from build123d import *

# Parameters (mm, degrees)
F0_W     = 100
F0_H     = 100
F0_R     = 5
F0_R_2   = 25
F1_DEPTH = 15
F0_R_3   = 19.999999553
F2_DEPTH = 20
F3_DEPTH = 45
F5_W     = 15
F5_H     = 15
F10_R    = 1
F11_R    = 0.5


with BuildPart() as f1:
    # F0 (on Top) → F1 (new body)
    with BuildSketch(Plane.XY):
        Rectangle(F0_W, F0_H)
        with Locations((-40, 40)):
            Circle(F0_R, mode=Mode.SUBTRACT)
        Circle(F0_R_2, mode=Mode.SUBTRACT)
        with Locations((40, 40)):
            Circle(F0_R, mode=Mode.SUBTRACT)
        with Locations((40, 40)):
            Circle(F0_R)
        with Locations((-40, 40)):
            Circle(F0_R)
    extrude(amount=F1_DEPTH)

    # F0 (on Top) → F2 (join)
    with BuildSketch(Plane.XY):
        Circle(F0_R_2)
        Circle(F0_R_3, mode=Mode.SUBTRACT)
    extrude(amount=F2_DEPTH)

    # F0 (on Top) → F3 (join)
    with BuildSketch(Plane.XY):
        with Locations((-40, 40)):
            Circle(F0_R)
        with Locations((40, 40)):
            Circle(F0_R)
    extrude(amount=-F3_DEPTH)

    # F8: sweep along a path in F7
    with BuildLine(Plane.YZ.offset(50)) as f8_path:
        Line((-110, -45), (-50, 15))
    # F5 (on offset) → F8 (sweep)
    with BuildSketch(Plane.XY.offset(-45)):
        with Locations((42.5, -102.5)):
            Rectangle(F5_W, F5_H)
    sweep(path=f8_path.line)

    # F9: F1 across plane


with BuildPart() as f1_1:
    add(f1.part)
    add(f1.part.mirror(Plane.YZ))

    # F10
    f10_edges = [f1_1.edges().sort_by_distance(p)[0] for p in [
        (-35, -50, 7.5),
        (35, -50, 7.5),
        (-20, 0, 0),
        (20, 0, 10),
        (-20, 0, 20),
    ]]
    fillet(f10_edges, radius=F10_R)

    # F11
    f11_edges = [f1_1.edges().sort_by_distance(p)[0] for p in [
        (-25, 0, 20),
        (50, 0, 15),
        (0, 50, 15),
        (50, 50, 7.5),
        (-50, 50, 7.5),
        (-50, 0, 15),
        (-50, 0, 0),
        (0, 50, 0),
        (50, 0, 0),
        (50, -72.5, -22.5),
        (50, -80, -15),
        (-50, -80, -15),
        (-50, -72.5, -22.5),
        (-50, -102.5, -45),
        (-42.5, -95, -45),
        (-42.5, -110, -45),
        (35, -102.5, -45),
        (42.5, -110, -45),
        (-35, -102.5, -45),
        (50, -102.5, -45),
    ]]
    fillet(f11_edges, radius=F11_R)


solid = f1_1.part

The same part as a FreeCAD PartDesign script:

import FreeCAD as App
import Part
import Sketcher

V = App.Vector
Q = App.Units.Quantity


def edges_at(feature, points):
    """Names of the edges that pass closest to the given points."""
    edges = feature.Shape.Edges
    near = lambda p: min(range(len(edges)), key=lambda i: edges[i].distToShape(Part.Vertex(*p))[0])
    return sorted({f"Edge{near(p) + 1}" for p in points})

doc = App.newDocument("Part")
body = doc.addObject("PartDesign::Body", "Body")

sketch1 = doc.addObject("Sketcher::SketchObject", "Sketch")
body.addObject(sketch1)
sketch1.AttachmentSupport = (doc.XY_Plane, [""])
sketch1.MapMode = "FlatFace"
sketch1.addGeometry(Part.LineSegment(V(-50, 50, 0), V(-50, -50, 0)), False)
sketch1.addGeometry(Part.LineSegment(V(-50, -50, 0), V(50, -50, 0)), False)
sketch1.addGeometry(Part.LineSegment(V(50, -50, 0), V(50, 50, 0)), False)
sketch1.addGeometry(Part.LineSegment(V(50, 50, 0), V(-50, 50, 0)), False)
sketch1.addGeometry(Part.Circle(V(0, 0, 0), V(0, 0, 1), 25), False)
sketch1.addConstraint(Sketcher.Constraint("Coincident", 0, 2, 1, 1))
sketch1.addConstraint(Sketcher.Constraint("Coincident", 1, 2, 2, 1))
sketch1.addConstraint(Sketcher.Constraint("Coincident", 2, 2, 3, 1))
sketch1.addConstraint(Sketcher.Constraint("Coincident", 3, 2, 0, 1))
sketch1.addConstraint(Sketcher.Constraint("Vertical", 0))
sketch1.addConstraint(Sketcher.Constraint("Horizontal", 1))
sketch1.addConstraint(Sketcher.Constraint("Vertical", 2))
sketch1.addConstraint(Sketcher.Constraint("Horizontal", 3))
sketch1.addConstraint(Sketcher.Constraint("Coincident", 4, 3, -1, 1))
sketch1.addConstraint(Sketcher.Constraint("Symmetric", 0, 2, 2, 2, -1, 1))
sketch1.addConstraint(Sketcher.Constraint("Equal", 3, 0))
sketch1.addConstraint(Sketcher.Constraint("Diameter", 4, Q("50 mm")))
sketch1.addConstraint(Sketcher.Constraint("DistanceX", 1, 1, 1, 2, Q("100 mm")))
pad1 = doc.addObject("PartDesign::Pad", "Pad")
body.addObject(pad1)
pad1.Profile = sketch1
pad1.Length = 15

sketch2 = doc.addObject("Sketcher::SketchObject", "Sketch001")
body.addObject(sketch2)
sketch2.AttachmentSupport = (doc.XY_Plane, [""])
sketch2.MapMode = "FlatFace"
sketch2.addGeometry(Part.Circle(V(0, 0, 0), V(0, 0, 1), 25), False)
sketch2.addGeometry(Part.Circle(V(0, 0, 0), V(0, 0, 1), 20), False)
sketch2.addConstraint(Sketcher.Constraint("Coincident", 0, 3, -1, 1))
sketch2.addConstraint(Sketcher.Constraint("Coincident", 1, 3, -1, 1))
sketch2.addConstraint(Sketcher.Constraint("Diameter", 0, Q("50 mm")))
sketch2.addConstraint(Sketcher.Constraint("Diameter", 1, Q("39.999999 mm")))
pad2 = doc.addObject("PartDesign::Pad", "Pad001")
body.addObject(pad2)
pad2.Profile = sketch2
pad2.Length = 20

sketch3 = doc.addObject("Sketcher::SketchObject", "Sketch002")
body.addObject(sketch3)
sketch3.AttachmentSupport = (doc.XY_Plane, [""])
sketch3.MapMode = "FlatFace"
sketch3.addGeometry(Part.Circle(V(-40, 40, 0), V(0, 0, 1), 5), False)
sketch3.addGeometry(Part.Circle(V(40, 40, 0), V(0, 0, 1), 5), False)
sketch3.addConstraint(Sketcher.Constraint("Equal", 0, 1))
sketch3.addConstraint(Sketcher.Constraint("Symmetric", 0, 3, 1, 3, -2))
sketch3.addConstraint(Sketcher.Constraint("Diameter", 0, Q("10 mm")))
sketch3.addConstraint(Sketcher.Constraint("DistanceX", 0, 3, -1, 1, Q("40 mm")))
sketch3.addConstraint(Sketcher.Constraint("DistanceY", -1, 1, 0, 3, Q("40 mm")))
pad3 = doc.addObject("PartDesign::Pad", "Pad002")
body.addObject(pad3)
pad3.Profile = sketch3
pad3.Length = 45
pad3.Reversed = True

sketch4 = doc.addObject("Sketcher::SketchObject", "Sketch003")
body.addObject(sketch4)
sketch4.AttachmentSupport = (doc.XY_Plane, [""])
sketch4.MapMode = "FlatFace"
sketch4.AttachmentOffset = App.Placement(V(0, 0, -45), App.Rotation())
sketch4.addGeometry(Part.LineSegment(V(35, -95, 0), V(35, -110, 0)), False)
sketch4.addGeometry(Part.LineSegment(V(35, -110, 0), V(50, -110, 0)), False)
sketch4.addGeometry(Part.LineSegment(V(50, -110, 0), V(50, -95, 0)), False)
sketch4.addGeometry(Part.LineSegment(V(50, -95, 0), V(35, -95, 0)), False)
sketch4.addConstraint(Sketcher.Constraint("Coincident", 0, 2, 1, 1))
sketch4.addConstraint(Sketcher.Constraint("Coincident", 1, 2, 2, 1))
sketch4.addConstraint(Sketcher.Constraint("Coincident", 2, 2, 3, 1))
sketch4.addConstraint(Sketcher.Constraint("Coincident", 3, 2, 0, 1))
sketch4.addConstraint(Sketcher.Constraint("Vertical", 0))
sketch4.addConstraint(Sketcher.Constraint("Horizontal", 1))
sketch4.addConstraint(Sketcher.Constraint("Vertical", 2))
sketch4.addConstraint(Sketcher.Constraint("Horizontal", 3))
sketch4.addConstraint(Sketcher.Constraint("Equal", 3, 0))
sketch4.addConstraint(Sketcher.Constraint("DistanceX", 1, 1, 1, 2, Q("15 mm")))
sketch4.addConstraint(Sketcher.Constraint("DistanceX", -1, 1, 0, 2, Q("35 mm")))
sketch4.addConstraint(Sketcher.Constraint("DistanceY", 0, 2, -1, 1, Q("110 mm")))

sketch5 = doc.addObject("Sketcher::SketchObject", "Sketch004")
body.addObject(sketch5)
sketch5.Placement = App.Placement(V(0, -32.5, 32.5), App.Rotation(V(0, 0.707106781, 0.707106781), V(0.999999999, 0, 0), V(0, 0.707106781, -0.707106781), "ZXY"))
sketch5.addGeometry(Part.LineSegment(V(-110, 50, 0), V(-25, 50, 0)), False)
sketch5.addConstraint(Sketcher.Constraint("Horizontal", 0))
sketch5.addConstraint(Sketcher.Constraint("DistanceY", -1, 1, 0, 1, Q("50 mm")))
sketch5.addConstraint(Sketcher.Constraint("DistanceX", 0, 1, 0, 2, Q("84.852814 mm")))
sketch5.addConstraint(Sketcher.Constraint("DistanceX", 0, 1, -1, 1, Q("109.601551 mm")))
doc.recompute()

additivepipe = doc.addObject("PartDesign::AdditivePipe", "AdditivePipe")
body.addObject(additivepipe)
additivepipe.Profile = sketch4
additivepipe.Spine = (sketch5, ["Edge1"])
body2 = doc.addObject("PartDesign::Body", "Body001")
doc.recompute()

body2.BaseFeature = body
doc.recompute()

mirroring = doc.addObject("Part::Mirroring", "Mirroring")
mirroring.Source = body
mirroring.Base = V(0, 0, 0)
mirroring.Normal = V(1, 0, 0)
body3 = doc.addObject("PartDesign::Body", "Body002")
body3.BaseFeature = mirroring
boolean = doc.addObject("PartDesign::Boolean", "Boolean")
body2.addObject(boolean)
boolean.Type = "Fuse"
boolean.addObjects([body3])
doc.recompute()

fillet = doc.addObject("PartDesign::Fillet", "Fillet")
body2.addObject(fillet)
fillet.Base = (boolean, edges_at(boolean, [
    (-35, -50, 7.5),
    (35, -50, 7.5),
    (-20, 0, 0),
    (20, 0, 10),
    (-20, 0, 20),
]))
fillet.Radius = 1
doc.recompute()

fillet2 = doc.addObject("PartDesign::Fillet", "Fillet001")
body2.addObject(fillet2)
fillet2.Base = (fillet, edges_at(fillet, [
    (-25, 0, 20),
    (50, 0, 15),
    (0, 50, 15),
    (50, 50, 7.5),
    (-50, 50, 7.5),
    (-50, 0, 15),
    (-50, 0, 0),
    (0, 50, 0),
    (50, 0, 0),
    (50, -72.5, -22.5),
    (50, -80, -15),
    (-50, -80, -15),
    (-50, -72.5, -22.5),
    (-50, -102.5, -45),
    (-42.5, -95, -45),
    (-42.5, -110, -45),
    (35, -102.5, -45),
    (42.5, -110, -45),
    (-35, -102.5, -45),
    (50, -102.5, -45),
]))
fillet2.Radius = 0.5
mirroring.Visibility = False

doc.recompute()
